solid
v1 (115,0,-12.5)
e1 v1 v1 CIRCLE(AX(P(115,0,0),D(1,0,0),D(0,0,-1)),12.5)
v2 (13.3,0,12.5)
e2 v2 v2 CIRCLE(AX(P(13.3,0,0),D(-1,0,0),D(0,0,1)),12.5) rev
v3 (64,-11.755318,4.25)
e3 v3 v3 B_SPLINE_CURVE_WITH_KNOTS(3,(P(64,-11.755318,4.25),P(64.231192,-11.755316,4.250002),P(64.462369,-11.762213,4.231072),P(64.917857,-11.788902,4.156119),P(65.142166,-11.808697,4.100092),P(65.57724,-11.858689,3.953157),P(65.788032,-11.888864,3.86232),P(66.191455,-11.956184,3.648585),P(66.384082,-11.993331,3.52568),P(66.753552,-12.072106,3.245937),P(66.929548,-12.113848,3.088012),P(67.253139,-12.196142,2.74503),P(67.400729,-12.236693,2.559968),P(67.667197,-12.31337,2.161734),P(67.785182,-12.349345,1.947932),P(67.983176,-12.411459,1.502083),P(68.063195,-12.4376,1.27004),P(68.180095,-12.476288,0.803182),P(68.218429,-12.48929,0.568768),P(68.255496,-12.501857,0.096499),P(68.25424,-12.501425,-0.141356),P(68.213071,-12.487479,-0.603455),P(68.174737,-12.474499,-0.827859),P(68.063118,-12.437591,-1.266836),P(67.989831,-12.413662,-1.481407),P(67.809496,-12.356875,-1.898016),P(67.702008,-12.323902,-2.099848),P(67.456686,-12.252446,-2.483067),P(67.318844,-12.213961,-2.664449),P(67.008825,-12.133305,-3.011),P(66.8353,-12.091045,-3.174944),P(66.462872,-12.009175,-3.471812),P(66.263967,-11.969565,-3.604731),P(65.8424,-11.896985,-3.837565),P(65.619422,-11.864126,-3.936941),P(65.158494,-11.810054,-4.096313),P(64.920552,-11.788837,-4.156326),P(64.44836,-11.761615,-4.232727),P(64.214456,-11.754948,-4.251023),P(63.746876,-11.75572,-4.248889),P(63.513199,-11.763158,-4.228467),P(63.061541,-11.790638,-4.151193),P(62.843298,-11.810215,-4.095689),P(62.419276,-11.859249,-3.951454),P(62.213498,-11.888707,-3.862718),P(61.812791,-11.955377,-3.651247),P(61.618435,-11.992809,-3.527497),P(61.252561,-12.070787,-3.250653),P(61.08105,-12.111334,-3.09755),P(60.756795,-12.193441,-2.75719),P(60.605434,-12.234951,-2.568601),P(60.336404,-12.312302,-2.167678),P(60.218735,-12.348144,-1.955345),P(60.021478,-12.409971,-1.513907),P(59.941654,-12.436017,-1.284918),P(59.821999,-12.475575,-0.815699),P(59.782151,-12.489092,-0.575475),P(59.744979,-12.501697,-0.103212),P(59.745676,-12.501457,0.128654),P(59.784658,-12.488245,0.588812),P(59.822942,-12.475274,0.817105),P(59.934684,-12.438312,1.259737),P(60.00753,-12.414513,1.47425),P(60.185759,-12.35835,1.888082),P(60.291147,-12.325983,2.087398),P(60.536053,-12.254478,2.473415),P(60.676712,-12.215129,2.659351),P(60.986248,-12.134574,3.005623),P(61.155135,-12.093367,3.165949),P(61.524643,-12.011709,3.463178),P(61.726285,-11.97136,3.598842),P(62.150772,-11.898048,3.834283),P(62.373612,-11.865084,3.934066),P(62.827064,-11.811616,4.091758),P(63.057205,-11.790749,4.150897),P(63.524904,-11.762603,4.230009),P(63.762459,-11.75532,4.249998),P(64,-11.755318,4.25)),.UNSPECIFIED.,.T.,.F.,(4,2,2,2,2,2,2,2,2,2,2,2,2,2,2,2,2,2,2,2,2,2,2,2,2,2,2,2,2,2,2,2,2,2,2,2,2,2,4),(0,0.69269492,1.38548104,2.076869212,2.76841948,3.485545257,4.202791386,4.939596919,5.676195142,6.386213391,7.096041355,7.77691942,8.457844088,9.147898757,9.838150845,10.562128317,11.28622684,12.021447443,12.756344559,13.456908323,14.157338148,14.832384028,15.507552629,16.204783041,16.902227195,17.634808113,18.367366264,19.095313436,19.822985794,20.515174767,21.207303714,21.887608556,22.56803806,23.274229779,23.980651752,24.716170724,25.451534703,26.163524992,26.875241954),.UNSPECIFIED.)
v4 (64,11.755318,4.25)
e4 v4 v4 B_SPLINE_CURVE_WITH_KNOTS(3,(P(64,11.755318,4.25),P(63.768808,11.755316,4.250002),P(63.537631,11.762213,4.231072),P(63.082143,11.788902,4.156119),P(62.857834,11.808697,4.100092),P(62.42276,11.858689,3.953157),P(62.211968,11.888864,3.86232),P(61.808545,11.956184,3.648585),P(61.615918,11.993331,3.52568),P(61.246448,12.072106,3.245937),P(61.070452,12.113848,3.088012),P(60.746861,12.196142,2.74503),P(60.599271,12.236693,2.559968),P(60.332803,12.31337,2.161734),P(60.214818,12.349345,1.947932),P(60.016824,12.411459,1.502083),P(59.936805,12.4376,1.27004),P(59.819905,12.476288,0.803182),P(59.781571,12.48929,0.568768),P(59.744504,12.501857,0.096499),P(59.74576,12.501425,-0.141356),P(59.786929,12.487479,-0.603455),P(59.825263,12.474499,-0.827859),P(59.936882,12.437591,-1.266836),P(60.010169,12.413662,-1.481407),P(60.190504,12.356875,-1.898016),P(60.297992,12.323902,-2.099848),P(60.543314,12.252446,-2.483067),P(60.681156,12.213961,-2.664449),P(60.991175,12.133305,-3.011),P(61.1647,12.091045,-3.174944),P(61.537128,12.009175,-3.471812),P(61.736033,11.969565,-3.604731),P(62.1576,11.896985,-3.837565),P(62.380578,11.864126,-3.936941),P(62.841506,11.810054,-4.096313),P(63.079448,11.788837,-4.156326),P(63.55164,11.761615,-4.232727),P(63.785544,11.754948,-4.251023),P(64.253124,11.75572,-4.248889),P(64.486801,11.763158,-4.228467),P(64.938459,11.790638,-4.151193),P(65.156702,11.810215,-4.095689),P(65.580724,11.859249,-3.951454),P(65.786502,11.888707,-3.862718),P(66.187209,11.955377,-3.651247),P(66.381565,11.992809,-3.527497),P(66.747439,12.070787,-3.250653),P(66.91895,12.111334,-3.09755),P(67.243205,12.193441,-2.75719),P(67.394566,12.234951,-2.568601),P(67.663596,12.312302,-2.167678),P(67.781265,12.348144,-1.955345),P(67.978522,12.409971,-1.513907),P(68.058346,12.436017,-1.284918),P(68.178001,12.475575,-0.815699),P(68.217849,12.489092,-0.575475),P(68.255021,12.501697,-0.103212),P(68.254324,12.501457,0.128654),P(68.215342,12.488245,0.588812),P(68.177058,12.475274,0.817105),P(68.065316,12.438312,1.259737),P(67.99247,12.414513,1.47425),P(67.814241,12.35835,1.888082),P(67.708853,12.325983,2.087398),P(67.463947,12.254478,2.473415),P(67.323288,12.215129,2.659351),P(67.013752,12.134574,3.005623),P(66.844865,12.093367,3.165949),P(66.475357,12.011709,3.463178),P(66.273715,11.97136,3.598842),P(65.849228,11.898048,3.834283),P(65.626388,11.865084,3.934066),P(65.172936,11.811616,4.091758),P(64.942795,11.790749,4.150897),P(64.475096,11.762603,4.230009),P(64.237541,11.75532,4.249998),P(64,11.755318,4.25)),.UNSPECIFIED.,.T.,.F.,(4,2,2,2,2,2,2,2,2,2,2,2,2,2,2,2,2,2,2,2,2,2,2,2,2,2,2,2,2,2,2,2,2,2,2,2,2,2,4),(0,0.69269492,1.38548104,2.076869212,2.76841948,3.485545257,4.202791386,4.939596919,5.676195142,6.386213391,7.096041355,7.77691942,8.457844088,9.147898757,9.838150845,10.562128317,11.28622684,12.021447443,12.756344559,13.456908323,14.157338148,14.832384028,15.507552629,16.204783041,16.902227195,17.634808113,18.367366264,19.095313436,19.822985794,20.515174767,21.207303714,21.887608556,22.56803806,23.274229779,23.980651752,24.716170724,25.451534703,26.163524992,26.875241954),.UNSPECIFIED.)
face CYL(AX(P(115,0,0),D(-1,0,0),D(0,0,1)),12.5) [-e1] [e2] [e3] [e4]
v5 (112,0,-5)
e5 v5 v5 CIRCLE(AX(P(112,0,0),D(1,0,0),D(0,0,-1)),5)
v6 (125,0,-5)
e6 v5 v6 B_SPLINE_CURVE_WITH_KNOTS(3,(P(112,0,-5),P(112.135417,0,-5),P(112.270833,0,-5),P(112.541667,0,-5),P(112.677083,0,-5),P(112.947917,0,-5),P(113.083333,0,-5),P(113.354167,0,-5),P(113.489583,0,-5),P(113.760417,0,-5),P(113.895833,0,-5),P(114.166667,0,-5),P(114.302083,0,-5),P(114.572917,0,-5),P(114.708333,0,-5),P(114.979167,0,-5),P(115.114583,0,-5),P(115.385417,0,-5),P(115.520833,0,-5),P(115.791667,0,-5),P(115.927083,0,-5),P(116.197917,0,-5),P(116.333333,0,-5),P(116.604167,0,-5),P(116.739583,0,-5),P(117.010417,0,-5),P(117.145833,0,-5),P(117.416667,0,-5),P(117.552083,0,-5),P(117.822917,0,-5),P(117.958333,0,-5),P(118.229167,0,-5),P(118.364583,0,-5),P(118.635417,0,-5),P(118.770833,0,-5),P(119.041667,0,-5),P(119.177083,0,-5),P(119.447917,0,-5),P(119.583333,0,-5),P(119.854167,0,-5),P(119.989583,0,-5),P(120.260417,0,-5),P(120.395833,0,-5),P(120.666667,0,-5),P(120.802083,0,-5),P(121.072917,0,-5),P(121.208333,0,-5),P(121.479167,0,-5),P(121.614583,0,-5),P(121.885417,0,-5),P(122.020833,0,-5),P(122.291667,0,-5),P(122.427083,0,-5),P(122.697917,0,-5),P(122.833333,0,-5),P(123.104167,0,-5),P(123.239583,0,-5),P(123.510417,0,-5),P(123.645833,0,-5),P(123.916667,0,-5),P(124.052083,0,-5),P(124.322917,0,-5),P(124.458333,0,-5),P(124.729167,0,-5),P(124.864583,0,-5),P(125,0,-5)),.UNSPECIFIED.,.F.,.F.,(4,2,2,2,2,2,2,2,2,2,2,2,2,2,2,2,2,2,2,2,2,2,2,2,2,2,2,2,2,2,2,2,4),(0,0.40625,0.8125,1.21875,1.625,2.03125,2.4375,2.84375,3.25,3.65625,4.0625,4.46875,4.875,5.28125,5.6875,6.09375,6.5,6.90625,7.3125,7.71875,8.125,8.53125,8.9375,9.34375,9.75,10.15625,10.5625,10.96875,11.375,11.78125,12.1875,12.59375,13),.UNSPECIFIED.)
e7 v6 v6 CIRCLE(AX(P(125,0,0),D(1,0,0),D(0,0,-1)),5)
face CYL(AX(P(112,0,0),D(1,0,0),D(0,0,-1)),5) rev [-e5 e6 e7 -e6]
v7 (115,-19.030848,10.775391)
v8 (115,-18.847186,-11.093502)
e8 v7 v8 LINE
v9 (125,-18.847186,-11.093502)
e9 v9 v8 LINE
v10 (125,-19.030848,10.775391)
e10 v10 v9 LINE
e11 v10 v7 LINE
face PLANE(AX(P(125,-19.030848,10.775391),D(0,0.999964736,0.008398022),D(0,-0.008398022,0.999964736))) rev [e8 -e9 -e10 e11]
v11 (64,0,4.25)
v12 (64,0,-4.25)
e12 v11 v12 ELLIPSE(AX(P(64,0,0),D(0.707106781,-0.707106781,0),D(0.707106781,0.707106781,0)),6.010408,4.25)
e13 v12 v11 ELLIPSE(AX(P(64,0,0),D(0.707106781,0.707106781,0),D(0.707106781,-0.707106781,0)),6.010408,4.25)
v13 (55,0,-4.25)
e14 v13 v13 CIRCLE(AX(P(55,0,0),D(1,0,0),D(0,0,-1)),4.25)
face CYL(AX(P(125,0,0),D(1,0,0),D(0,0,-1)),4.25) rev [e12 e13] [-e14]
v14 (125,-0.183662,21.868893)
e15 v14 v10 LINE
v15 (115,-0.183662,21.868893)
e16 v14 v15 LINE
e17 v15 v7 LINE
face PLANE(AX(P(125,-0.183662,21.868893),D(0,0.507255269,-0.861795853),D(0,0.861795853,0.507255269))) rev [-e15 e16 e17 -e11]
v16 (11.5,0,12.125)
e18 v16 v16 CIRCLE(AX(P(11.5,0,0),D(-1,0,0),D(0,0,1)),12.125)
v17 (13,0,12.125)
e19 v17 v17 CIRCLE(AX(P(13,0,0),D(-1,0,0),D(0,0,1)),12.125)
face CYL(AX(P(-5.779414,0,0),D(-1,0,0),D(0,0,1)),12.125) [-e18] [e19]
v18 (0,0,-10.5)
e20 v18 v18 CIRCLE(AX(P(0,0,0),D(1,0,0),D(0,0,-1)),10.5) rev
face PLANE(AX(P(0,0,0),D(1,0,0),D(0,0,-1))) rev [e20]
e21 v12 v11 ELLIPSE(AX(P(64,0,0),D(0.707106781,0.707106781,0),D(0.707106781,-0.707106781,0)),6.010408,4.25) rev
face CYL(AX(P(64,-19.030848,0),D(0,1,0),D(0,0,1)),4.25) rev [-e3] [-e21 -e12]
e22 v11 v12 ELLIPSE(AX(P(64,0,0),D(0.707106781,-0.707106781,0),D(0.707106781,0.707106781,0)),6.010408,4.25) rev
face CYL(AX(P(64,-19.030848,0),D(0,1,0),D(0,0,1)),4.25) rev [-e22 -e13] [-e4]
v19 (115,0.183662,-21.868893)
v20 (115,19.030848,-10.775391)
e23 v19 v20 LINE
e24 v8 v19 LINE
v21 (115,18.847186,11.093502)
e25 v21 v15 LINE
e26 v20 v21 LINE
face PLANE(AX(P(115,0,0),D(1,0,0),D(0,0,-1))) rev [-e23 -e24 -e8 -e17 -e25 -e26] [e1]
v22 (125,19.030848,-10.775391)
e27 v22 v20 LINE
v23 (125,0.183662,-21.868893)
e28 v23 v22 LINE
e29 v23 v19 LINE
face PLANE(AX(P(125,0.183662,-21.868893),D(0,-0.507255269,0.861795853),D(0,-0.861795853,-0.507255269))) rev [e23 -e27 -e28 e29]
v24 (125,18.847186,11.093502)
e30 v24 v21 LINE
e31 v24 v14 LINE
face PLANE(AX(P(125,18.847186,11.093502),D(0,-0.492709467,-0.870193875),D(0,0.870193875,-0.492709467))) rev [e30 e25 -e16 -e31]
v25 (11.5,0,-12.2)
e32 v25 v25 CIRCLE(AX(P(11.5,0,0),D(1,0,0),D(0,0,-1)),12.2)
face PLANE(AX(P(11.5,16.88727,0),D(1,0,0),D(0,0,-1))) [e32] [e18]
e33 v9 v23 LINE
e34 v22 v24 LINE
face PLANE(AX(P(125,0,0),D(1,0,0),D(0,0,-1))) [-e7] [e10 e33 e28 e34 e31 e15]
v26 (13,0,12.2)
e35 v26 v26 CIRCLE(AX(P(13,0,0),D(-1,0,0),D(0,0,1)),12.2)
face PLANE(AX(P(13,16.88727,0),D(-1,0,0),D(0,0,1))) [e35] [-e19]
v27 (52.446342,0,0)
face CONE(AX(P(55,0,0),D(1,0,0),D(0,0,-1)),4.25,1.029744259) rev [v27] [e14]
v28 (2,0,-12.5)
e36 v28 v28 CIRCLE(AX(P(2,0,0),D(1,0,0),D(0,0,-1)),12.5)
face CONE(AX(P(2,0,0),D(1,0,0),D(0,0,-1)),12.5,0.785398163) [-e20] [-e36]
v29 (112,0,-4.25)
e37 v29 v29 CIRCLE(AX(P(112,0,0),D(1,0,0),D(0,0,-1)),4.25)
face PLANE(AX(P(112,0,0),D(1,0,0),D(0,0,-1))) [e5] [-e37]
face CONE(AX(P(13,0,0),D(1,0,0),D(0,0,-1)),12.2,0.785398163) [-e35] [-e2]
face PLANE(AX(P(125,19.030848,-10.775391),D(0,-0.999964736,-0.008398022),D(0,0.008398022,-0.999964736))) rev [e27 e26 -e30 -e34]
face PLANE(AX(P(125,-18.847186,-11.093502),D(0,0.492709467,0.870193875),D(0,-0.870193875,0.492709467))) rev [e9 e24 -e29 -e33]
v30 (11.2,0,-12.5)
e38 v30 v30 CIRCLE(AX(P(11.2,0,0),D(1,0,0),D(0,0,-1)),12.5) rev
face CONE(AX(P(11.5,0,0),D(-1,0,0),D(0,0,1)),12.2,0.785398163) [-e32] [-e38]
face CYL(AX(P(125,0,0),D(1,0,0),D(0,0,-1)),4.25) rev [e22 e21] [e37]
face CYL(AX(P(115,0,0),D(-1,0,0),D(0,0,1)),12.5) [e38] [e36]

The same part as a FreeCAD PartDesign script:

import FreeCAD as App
import Part
import Sketcher

V = App.Vector
Q = App.Units.Quantity


def edges_at(feature, points):
    """Names of the edges that pass closest to the given points."""
    edges = feature.Shape.Edges
    near = lambda p: min(range(len(edges)), key=lambda i: edges[i].distToShape(Part.Vertex(*p))[0])
    return sorted({f"Edge{near(p) + 1}" for p in points})

doc = App.newDocument("Part")
body = doc.addObject("PartDesign::Body", "Body")

# Sketch on YZ plane
sketch1 = body.newObject("Sketcher::SketchObject", "Sketch")
sketch1.AttachmentSupport = (doc.getObject("YZ_Plane"), [""])
sketch1.MapMode = "FlatFace"
sketch1.addGeometry(Part.Circle(V(0, 0, 0), V(0, 0, 1), 12), False)
sketch1.addConstraint(Sketcher.Constraint("Coincident", 0, 3, -1, 1))
sketch1.addConstraint(Sketcher.Constraint("Diameter", 0, Q("25 mm")))
pad1 = body.newObject("PartDesign::Pad", "Pad")
pad1.Profile = sketch1
pad1.Length = 115
doc.recompute()

chamfer = body.newObject("PartDesign::Chamfer", "Chamfer")
chamfer.Base = (pad1, edges_at(pad1, [(0, 0, 12.5)]))
chamfer.Size = 2

# Sketch on YZ plane
sketch2 = body.newObject("Sketcher::SketchObject", "Sketch001")
sketch2.AttachmentSupport = (doc.getObject("YZ_Plane"), [""])
sketch2.MapMode = "FlatFace"
sketch2.AttachmentOffset = App.Placement(V(0, 0, 115), App.Rotation())
sketch2.addGeometry(Part.LineSegment(V(-19, -11, 0), V(0, -22, 0)), False)
sketch2.addGeometry(Part.LineSegment(V(0, -22, 0), V(19, -11, 0)), False)
sketch2.addGeometry(Part.LineSegment(V(19, -11, 0), V(19, 11, 0)), False)
sketch2.addGeometry(Part.LineSegment(V(19, 11, 0), V(0, 22, 0)), False)
sketch2.addGeometry(Part.LineSegment(V(0, 22, 0), V(-19, 11, 0)), False)
sketch2.addGeometry(Part.LineSegment(V(-19, 11, 0), V(-19, -11, 0)), False)
sketch2.addConstraint(Sketcher.Constraint("Coincident", 0, 2, 1, 1))
sketch2.addConstraint(Sketcher.Constraint("Coincident", 1, 2, 2, 1))
sketch2.addConstraint(Sketcher.Constraint("Coincident", 2, 2, 3, 1))
sketch2.addConstraint(Sketcher.Constraint("Coincident", 3, 2, 4, 1))
sketch2.addConstraint(Sketcher.Constraint("Coincident", 4, 2, 5, 1))
sketch2.addConstraint(Sketcher.Constraint("Coincident", 5, 2, 0, 1))
sketch2.addConstraint(Sketcher.Constraint("Symmetric", 0, 2, 3, 2, -1, 1))
sketch2.addConstraint(Sketcher.Constraint("Symmetric", 1, 2, 4, 2, -1, 1))
sketch2.addConstraint(Sketcher.Constraint("Symmetric", 2, 2, 5, 2, -1, 1))
sketch2.addConstraint(Sketcher.Constraint("Equal", 0, 1))
sketch2.addConstraint(Sketcher.Constraint("Equal", 1, 2))
sketch2.addConstraint(Sketcher.Constraint("DistanceX", -1, 1, 0, 2, Q("0.183662 mm")))
sketch2.addConstraint(Sketcher.Constraint("DistanceY", 1, 2, -1, 1, Q("10.775391 mm")))
sketch2.addConstraint(Sketcher.Constraint("DistanceX", 2, 2, 1, 2, Q("0.183662 mm")))
sketch2.addConstraint(Sketcher.Constraint("DistanceY", 2, 2, 3, 2, Q("10.775391 mm")))
pad2 = body.newObject("PartDesign::Pad", "Pad001")
pad2.Profile = sketch2
pad2.Length = 10

# Sketch on YZ plane
sketch3 = body.newObject("Sketcher::SketchObject", "Sketch002")
sketch3.AttachmentSupport = (doc.getObject("YZ_Plane"), [""])
sketch3.MapMode = "FlatFace"
sketch3.AttachmentOffset = App.Placement(V(0, 0, 125), App.Rotation())
sketch3.addGeometry(Part.Circle(V(0, 0, 0), V(0, 0, 1), 4.2), False)
sketch3.addConstraint(Sketcher.Constraint("Coincident", 0, 3, -1, 1))
sketch3.addConstraint(Sketcher.Constraint("Diameter", 0, Q("8.5 mm")))
doc.recompute()
hole = body.newObject("PartDesign::Hole", "Hole")
hole.Profile = sketch3
hole.ThreadType = "None"
hole.Diameter = 8.5
hole.DepthType = "Dimension"
hole.Depth = 70
hole.DrillPoint = "Angled"
hole.DrillPointAngle = 118

# Sketch on YZ plane
sketch4 = body.newObject("Sketcher::SketchObject", "Sketch003")
sketch4.AttachmentSupport = (doc.getObject("YZ_Plane"), [""])
sketch4.MapMode = "FlatFace"
sketch4.AttachmentOffset = App.Placement(V(0, 0, 112), App.Rotation())
sketch4.addGeometry(Part.Circle(V(0, 0, 0), V(0, 0, 1), 5), False)
sketch4.addGeometry(Part.Circle(V(0, 0, 0), V(0, 0, 1), 4.2), False)
sketch4.addConstraint(Sketcher.Constraint("Coincident", 0, 3, -1, 1))
sketch4.addConstraint(Sketcher.Constraint("Coincident", 1, 3, -1, 1))
sketch4.addConstraint(Sketcher.Constraint("Diameter", 0, Q("10 mm")))
sketch4.addConstraint(Sketcher.Constraint("Diameter", 1, Q("8.5 mm")))
pocket1 = body.newObject("PartDesign::Pocket", "Pocket")
pocket1.Profile = sketch4
pocket1.Length = 13
pocket1.Reversed = True

# Sketch on XZ plane
sketch5 = body.newObject("Sketcher::SketchObject", "Sketch004")
sketch5.AttachmentSupport = (doc.getObject("XZ_Plane"), [""])
sketch5.MapMode = "FlatFace"
sketch5.addGeometry(Part.Circle(V(64, 0, 0), V(0, 0, 1), 4.2), False)
sketch5.addConstraint(Sketcher.Constraint("PointOnObject", 0, 3, -1))
sketch5.addConstraint(Sketcher.Constraint("Diameter", 0, Q("8.5 mm")))
sketch5.addConstraint(Sketcher.Constraint("DistanceX", -1, 1, 0, 3, Q("64 mm")))
pocket2 = body.newObject("PartDesign::Pocket", "Pocket001")
pocket2.Profile = sketch5
pocket2.Type = "ThroughAll"
pocket2.Midplane = True

# Sketch on XY plane
sketch6 = body.newObject("Sketcher::SketchObject", "Sketch005")
sketch6.AttachmentSupport = (doc.getObject("XY_Plane"), [""])
sketch6.MapMode = "FlatFace"
sketch6.addGeometry(Part.LineSegment(V(11.5, 16.9, 0), V(11.5, 12.1, 0)), False)
sketch6.addGeometry(Part.LineSegment(V(11.5, 12.1, 0), V(13, 12.1, 0)), False)
sketch6.addGeometry(Part.LineSegment(V(13, 12.1, 0), V(13, 16.9, 0)), False)
sketch6.addGeometry(Part.LineSegment(V(13, 16.9, 0), V(11.5, 16.9, 0)), False)
sketch6.addConstraint(Sketcher.Constraint("Coincident", 0, 2, 1, 1))
sketch6.addConstraint(Sketcher.Constraint("Coincident", 1, 2, 2, 1))
sketch6.addConstraint(Sketcher.Constraint("Coincident", 2, 2, 3, 1))
sketch6.addConstraint(Sketcher.Constraint("Coincident", 3, 2, 0, 1))
sketch6.addConstraint(Sketcher.Constraint("Vertical", 0))
sketch6.addConstraint(Sketcher.Constraint("Horizontal", 1))
sketch6.addConstraint(Sketcher.Constraint("Vertical", 2))
sketch6.addConstraint(Sketcher.Constraint("Horizontal", 3))
sketch6.addConstraint(Sketcher.Constraint("DistanceX", 1, 1, 1, 2, Q("1.5 mm")))
sketch6.addConstraint(Sketcher.Constraint("DistanceX", -1, 1, 1, 2, Q("13 mm")))
sketch6.addConstraint(Sketcher.Constraint("DistanceY", -1, 1, 0, 2, Q("12.125 mm")))
sketch6.addConstraint(Sketcher.Constraint("DistanceY", 0, 2, 0, 1, Q("4.76227 mm")))
groove = body.newObject("PartDesign::Groove", "Groove")
groove.Profile = sketch6
groove.ReferenceAxis = (sketch6, ["H_Axis"])
groove.Angle = 360
doc.recompute()

chamfer2 = body.newObject("PartDesign::Chamfer", "Chamfer001")
chamfer2.Base = (groove, edges_at(groove, [(13, 0, 12.5)]))
chamfer2.Size = 0.3
doc.recompute()

chamfer3 = body.newObject("PartDesign::Chamfer", "Chamfer002")
chamfer3.Base = (chamfer2, edges_at(chamfer2, [(11.5, 0, 12.5)]))
chamfer3.Size = 0.3

doc.recompute()
